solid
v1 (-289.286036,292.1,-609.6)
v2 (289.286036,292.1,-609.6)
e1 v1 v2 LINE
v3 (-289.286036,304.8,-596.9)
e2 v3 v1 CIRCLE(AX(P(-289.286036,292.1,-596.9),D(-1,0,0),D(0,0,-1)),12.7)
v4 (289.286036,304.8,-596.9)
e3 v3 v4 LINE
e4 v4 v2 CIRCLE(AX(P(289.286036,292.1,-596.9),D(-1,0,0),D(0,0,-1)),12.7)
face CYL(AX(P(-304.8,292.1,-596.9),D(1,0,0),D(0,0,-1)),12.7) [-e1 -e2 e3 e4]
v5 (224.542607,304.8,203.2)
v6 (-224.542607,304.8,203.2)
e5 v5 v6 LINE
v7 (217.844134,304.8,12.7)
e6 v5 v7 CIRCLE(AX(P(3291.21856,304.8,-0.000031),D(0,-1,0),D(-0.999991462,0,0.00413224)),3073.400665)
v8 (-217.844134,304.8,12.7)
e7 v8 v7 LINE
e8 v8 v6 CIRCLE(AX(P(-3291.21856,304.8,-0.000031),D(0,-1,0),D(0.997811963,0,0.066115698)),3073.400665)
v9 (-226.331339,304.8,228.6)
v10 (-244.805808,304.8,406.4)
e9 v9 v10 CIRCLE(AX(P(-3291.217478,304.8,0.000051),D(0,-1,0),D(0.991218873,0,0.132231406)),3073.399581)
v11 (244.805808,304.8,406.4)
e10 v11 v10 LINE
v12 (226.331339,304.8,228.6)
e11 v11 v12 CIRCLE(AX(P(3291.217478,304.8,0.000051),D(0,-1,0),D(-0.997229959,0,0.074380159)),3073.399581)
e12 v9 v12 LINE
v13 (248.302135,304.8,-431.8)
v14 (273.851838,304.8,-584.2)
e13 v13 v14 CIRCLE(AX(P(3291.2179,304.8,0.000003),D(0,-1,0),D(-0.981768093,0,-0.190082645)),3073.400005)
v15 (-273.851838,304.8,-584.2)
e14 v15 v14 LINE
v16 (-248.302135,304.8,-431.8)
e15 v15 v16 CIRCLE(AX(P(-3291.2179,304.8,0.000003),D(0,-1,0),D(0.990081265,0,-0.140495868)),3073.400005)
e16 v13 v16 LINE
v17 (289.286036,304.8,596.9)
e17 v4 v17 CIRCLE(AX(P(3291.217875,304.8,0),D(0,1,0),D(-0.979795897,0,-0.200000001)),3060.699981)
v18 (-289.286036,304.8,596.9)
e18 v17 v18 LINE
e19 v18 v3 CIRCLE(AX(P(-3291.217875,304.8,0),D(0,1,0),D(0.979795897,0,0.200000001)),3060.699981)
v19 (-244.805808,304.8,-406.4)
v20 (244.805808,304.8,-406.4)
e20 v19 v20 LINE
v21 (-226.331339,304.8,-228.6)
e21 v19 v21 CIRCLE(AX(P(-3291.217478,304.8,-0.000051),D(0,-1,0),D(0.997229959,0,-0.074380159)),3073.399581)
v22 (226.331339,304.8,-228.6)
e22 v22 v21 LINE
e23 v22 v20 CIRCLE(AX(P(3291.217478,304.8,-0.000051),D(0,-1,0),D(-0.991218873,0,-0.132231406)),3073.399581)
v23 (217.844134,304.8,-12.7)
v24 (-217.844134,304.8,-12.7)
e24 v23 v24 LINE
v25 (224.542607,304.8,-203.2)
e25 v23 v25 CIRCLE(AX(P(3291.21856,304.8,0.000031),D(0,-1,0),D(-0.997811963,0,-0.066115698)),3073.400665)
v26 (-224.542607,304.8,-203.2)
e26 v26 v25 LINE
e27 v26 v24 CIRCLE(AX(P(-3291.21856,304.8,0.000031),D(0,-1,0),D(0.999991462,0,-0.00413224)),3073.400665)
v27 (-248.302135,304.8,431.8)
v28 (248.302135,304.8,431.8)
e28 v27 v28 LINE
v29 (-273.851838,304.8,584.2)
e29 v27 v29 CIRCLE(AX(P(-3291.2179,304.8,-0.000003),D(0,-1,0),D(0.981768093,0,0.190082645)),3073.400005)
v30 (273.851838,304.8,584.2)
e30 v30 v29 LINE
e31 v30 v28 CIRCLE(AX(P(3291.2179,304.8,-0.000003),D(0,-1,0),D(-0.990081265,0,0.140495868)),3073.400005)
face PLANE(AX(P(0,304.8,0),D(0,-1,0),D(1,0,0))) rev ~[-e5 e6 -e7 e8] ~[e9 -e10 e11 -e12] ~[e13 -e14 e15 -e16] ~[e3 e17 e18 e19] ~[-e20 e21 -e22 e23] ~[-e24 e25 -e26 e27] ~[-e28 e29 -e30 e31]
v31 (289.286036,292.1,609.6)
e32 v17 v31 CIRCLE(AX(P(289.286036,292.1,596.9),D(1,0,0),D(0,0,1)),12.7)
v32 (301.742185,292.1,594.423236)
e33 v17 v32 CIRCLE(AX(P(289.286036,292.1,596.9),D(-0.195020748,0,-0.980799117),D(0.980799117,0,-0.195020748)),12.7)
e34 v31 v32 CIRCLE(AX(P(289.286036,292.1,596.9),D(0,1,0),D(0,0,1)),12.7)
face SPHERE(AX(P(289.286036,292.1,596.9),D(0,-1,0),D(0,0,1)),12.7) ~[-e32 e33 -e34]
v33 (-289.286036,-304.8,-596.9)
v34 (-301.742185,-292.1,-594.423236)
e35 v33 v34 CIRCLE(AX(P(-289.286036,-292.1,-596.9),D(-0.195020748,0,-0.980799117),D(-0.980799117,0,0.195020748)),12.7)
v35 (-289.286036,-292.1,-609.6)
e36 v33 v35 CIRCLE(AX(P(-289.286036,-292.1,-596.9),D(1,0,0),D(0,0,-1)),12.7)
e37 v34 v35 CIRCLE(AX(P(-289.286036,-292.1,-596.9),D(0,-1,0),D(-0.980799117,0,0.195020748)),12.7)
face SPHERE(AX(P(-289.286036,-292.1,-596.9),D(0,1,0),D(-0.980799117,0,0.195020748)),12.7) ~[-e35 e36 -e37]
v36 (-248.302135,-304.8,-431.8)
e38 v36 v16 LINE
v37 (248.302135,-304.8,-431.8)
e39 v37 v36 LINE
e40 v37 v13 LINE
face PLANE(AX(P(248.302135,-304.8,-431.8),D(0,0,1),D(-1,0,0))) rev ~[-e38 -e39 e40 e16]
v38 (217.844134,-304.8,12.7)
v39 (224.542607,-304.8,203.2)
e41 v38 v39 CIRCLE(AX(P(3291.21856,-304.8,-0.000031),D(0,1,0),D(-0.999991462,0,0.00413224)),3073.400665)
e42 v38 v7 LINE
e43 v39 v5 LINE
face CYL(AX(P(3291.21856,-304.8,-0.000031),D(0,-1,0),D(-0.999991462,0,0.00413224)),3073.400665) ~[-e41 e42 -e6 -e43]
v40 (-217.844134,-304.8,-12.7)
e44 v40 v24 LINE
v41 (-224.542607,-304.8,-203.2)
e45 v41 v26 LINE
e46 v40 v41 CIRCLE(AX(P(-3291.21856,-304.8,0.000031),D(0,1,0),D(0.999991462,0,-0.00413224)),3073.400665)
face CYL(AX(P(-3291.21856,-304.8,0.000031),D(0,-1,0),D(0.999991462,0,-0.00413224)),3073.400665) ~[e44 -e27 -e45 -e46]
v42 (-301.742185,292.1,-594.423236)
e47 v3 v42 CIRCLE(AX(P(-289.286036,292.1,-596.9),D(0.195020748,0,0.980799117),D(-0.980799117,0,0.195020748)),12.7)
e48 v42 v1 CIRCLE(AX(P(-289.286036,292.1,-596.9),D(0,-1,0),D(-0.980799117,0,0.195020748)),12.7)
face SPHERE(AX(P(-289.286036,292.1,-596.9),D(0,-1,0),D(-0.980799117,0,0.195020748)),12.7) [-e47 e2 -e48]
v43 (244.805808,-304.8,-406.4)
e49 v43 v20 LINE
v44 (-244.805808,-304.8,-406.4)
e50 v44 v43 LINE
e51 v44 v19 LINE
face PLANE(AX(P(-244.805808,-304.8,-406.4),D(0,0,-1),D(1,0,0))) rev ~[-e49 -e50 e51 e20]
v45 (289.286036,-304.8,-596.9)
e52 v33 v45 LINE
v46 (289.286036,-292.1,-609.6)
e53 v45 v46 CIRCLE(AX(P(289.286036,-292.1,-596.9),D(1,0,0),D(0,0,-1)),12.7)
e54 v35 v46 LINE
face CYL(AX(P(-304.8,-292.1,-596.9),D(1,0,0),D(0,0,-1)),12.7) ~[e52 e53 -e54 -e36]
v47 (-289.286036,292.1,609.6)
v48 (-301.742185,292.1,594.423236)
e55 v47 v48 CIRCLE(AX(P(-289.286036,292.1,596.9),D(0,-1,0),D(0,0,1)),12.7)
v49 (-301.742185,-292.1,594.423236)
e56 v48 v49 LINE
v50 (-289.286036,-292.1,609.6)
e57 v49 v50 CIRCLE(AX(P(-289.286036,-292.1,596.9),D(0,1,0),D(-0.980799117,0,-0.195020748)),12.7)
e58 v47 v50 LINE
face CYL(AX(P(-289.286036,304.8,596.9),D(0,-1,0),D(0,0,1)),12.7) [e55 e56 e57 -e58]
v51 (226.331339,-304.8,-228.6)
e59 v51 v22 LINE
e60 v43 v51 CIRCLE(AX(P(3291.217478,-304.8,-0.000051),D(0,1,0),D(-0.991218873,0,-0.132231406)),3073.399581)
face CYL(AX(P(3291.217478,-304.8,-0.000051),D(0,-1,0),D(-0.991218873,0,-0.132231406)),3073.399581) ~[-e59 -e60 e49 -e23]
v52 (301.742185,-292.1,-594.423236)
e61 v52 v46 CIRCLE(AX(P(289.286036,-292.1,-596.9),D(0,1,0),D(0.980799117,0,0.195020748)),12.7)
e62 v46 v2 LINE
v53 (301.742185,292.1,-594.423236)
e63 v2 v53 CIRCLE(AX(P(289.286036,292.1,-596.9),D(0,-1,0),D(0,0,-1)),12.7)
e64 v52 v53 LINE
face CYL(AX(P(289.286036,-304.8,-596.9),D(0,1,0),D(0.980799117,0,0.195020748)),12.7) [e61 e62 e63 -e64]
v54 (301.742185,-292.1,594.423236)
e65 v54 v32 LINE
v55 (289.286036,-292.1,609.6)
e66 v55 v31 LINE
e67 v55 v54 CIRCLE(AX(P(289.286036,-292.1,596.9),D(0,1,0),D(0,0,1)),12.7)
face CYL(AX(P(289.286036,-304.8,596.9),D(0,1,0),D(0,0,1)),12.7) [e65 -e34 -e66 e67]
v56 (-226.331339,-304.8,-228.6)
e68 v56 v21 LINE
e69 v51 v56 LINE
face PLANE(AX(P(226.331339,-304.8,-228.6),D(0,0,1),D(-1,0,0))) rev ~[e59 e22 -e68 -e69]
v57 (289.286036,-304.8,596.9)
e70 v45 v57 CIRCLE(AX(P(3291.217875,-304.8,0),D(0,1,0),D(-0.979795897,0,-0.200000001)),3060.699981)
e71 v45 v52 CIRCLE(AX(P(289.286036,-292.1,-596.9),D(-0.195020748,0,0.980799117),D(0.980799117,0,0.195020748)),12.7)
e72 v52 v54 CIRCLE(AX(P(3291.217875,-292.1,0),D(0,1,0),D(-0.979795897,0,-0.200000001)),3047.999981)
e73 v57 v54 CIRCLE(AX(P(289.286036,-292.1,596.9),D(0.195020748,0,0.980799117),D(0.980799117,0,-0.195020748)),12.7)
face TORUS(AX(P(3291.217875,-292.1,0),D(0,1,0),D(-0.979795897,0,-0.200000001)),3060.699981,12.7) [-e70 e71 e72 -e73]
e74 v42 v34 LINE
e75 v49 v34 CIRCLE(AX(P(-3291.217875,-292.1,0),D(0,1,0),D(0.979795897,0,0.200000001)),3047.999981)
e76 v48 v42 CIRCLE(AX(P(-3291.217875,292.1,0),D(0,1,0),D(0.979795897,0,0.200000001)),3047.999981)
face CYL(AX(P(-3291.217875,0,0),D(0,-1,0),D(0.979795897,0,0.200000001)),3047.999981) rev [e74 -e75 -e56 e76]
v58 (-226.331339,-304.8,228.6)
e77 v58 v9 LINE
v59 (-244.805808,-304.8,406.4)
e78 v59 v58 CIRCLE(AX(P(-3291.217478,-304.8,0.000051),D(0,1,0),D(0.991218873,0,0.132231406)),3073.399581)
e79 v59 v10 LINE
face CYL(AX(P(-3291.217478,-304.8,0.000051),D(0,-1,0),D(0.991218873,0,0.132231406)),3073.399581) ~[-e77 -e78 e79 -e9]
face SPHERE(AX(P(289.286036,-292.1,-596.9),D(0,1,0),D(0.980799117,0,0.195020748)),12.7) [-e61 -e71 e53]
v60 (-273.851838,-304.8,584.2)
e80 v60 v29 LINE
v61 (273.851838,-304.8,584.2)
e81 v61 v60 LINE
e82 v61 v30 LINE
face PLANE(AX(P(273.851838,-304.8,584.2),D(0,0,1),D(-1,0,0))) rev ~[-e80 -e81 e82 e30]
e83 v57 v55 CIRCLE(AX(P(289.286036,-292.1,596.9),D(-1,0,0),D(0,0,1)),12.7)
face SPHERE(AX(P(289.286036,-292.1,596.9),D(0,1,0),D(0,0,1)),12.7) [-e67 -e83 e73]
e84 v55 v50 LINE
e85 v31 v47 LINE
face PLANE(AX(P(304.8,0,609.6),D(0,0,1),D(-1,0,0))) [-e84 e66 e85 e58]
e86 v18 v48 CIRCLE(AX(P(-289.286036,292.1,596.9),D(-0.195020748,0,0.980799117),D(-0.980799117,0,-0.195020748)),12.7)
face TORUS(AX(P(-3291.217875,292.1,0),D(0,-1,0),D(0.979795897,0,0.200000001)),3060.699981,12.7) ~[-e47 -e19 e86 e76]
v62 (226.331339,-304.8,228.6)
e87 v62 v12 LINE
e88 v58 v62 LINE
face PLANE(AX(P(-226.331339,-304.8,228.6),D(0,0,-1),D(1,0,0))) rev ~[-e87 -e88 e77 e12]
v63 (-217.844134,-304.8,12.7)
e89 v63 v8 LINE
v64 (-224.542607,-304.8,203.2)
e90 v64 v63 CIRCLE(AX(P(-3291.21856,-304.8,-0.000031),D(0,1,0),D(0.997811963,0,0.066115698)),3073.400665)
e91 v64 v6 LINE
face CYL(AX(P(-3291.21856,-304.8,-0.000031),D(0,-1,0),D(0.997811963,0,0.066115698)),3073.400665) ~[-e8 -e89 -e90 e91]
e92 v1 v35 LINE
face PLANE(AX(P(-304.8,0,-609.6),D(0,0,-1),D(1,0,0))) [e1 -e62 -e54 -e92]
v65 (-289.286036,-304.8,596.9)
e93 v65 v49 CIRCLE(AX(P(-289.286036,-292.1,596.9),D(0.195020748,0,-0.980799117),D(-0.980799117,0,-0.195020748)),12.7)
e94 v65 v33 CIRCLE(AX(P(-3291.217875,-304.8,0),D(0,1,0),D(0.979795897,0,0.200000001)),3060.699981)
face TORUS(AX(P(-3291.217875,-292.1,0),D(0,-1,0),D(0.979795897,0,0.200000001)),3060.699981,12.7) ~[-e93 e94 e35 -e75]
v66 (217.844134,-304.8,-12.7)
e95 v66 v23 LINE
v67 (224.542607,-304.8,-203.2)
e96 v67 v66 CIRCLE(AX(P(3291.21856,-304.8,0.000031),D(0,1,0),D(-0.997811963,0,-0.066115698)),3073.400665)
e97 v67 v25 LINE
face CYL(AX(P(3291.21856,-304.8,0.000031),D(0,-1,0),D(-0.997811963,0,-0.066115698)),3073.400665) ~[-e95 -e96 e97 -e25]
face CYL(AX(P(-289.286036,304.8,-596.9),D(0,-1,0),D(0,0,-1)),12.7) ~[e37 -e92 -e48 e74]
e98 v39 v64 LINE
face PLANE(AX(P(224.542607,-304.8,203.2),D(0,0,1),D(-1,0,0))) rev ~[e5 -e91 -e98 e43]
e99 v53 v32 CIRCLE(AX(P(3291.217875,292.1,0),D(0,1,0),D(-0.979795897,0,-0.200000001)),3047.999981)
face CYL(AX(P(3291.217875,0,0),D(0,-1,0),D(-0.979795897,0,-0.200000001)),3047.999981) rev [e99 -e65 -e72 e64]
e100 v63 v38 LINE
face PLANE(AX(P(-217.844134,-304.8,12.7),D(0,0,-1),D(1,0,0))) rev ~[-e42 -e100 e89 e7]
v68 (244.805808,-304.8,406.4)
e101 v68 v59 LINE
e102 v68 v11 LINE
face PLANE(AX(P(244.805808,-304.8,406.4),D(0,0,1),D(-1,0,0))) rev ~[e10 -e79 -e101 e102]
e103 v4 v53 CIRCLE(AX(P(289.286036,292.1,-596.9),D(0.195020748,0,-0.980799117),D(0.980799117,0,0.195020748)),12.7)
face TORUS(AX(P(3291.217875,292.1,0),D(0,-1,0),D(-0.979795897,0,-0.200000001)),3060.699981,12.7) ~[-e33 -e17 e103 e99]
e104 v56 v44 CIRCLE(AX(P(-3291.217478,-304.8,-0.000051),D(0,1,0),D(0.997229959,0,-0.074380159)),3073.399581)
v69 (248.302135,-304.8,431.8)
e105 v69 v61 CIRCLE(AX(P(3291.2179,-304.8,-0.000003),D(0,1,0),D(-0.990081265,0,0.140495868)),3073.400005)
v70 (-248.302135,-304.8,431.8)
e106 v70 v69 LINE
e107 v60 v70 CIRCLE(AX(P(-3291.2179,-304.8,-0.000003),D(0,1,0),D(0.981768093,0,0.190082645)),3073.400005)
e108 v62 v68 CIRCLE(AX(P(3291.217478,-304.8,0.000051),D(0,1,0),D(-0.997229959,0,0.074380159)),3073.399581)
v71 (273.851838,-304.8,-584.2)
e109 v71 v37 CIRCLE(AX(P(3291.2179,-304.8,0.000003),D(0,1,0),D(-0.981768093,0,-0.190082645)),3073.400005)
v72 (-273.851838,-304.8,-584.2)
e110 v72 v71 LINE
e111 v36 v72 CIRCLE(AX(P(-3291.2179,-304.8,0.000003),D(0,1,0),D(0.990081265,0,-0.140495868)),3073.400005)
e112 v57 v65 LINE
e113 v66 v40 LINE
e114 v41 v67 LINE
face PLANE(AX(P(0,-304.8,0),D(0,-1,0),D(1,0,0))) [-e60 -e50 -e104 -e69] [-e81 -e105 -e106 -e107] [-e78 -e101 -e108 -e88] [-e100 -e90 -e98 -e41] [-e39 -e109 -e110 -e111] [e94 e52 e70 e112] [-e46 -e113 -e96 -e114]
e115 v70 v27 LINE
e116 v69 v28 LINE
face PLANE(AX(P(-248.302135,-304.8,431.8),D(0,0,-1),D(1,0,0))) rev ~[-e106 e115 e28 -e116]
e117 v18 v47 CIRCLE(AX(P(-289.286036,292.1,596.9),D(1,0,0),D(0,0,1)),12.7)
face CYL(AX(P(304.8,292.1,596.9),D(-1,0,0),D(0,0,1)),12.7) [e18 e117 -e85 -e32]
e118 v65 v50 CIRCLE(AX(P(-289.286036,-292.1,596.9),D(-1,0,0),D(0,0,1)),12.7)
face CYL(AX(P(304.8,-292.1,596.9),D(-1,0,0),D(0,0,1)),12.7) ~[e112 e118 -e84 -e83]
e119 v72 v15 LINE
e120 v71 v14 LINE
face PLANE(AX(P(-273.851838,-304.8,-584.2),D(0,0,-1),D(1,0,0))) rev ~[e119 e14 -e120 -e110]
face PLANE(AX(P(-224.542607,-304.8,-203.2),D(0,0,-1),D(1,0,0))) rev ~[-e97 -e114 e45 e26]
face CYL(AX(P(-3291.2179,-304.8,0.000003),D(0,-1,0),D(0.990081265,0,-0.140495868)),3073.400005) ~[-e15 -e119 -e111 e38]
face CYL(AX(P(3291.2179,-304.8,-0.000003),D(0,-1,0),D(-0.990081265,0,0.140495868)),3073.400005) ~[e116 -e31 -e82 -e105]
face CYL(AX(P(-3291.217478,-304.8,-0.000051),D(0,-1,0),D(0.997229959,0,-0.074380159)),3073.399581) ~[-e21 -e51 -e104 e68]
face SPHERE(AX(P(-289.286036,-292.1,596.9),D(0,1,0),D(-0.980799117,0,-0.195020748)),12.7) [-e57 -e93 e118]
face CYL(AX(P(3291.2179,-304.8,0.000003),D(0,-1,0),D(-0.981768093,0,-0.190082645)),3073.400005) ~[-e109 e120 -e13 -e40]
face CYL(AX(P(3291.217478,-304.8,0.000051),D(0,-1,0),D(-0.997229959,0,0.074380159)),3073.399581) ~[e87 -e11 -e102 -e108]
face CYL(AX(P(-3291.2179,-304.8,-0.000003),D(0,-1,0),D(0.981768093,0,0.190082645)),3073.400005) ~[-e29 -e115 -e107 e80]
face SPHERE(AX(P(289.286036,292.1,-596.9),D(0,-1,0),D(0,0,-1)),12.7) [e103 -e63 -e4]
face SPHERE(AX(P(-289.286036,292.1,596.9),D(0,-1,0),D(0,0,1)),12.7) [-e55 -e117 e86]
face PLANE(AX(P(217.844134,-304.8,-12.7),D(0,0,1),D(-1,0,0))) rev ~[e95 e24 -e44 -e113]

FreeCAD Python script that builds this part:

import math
import FreeCAD as App
import Part
import Sketcher
Q = App.Units.Quantity

doc = App.newDocument("Part")
body = doc.addObject("PartDesign::Body", "Body")

# Sketch on XZ plane
sketch1 = body.newObject("Sketcher::SketchObject", "Sketch")
sketch1.AttachmentSupport = (doc.getObject("XZ_Plane"), [""])
sketch1.MapMode = "FlatFace"
sketch1.addGeometry([
    Part.LineSegment(App.Vector(304.8, 609.6, 0), App.Vector(-304.8, 609.6, 0)),
    Part.ArcOfCircle(Part.Circle(App.Vector(-3291.217875, 0, 0), App.Vector(0, 0, 1), 3047.999981), math.radians(-11.536959), math.radians(11.536959)),
    Part.LineSegment(App.Vector(-304.8, -609.6, 0), App.Vector(304.8, -609.6, 0)),
    Part.ArcOfCircle(Part.Circle(App.Vector(3291.217875, 0, 0), App.Vector(0, 0, 1), 3047.999981), math.radians(168.463041), math.radians(191.536959)),
], False)
sketch1.addConstraint([
    Sketcher.Constraint("Coincident", 0, 2, 1, 2),
    Sketcher.Constraint("Coincident", 1, 1, 2, 1),
    Sketcher.Constraint("Coincident", 2, 2, 3, 2),
    Sketcher.Constraint("Coincident", 3, 1, 0, 1),
    Sketcher.Constraint("Horizontal", 0),
    Sketcher.Constraint("Horizontal", 2),
    Sketcher.Constraint("Equal", 1, 3),
    Sketcher.Constraint("Symmetric", 1, 3, 3, 3, -1, 1),
    Sketcher.Constraint("PointOnObject", 1, 3, -1),
    Sketcher.Constraint("Equal", 0, 2),
    Sketcher.Constraint("DistanceX", 0, 2, 0, 1, Q("24 in")),
    Sketcher.Constraint("DistanceY", -1, 1, 0, 2, Q("24 in")),
    Sketcher.Constraint("Radius", 1, Q("3047.999981 mm")),
])
pad1 = body.newObject("PartDesign::Pad", "Pad")
pad1.Profile = sketch1
pad1.Length = Q("24 in")
pad1.Midplane = True
doc.recompute()

fillet = body.newObject("PartDesign::Fillet", "Fillet")
fillet.Base = (pad1, ["Edge1"])
fillet.UseAllEdges = True
fillet.Radius = Q("0.5 in")

# Sketch on XZ plane
sketch2 = body.newObject("Sketcher::SketchObject", "Sketch001")
sketch2.AttachmentSupport = (doc.getObject("XZ_Plane"), [""])
sketch2.MapMode = "FlatFace"
sketch2.AttachmentOffset = App.Placement(App.Vector(0, 0, 12 * 25.4), App.Rotation())
sketch2.addGeometry([
    Part.ArcOfCircle(Part.Circle(App.Vector(3291.2179, -0.000003, 0), App.Vector(0, 0, 1), 3073.400005), math.radians(169.042393), math.radians(171.923459)),  # 0
    Part.LineSegment(App.Vector(273.851838, 584.2, 0), App.Vector(-273.851838, 584.2, 0)),  # 1
    Part.ArcOfCircle(Part.Circle(App.Vector(-3291.2179, -0.000003, 0), App.Vector(0, 0, 1), 3073.400005), math.radians(8.076541), math.radians(10.957607)),  # 2
    Part.LineSegment(App.Vector(-248.302135, 431.8, 0), App.Vector(248.302135, 431.8, 0)),  # 3
    Part.ArcOfCircle(Part.Circle(App.Vector(3291.2179, 0.000003, 0), App.Vector(0, 0, 1), 3073.400005), math.radians(-171.923459), math.radians(-169.042393)),  # 4
    Part.LineSegment(App.Vector(248.302135, -431.8, 0), App.Vector(-248.302135, -431.8, 0)),  # 5
    Part.ArcOfCircle(Part.Circle(App.Vector(-3291.2179, 0.000003, 0), App.Vector(0, 0, 1), 3073.400005), math.radians(-10.957607), math.radians(-8.076541)),  # 6
    Part.LineSegment(App.Vector(-273.851838, -584.2, 0), App.Vector(273.851838, -584.2, 0)),  # 7
    Part.ArcOfCircle(Part.Circle(App.Vector(3291.217478, -0.000051, 0), App.Vector(0, 0, 1), 3073.399581), math.radians(-175.734391), math.radians(-172.401444)),  # 8
    Part.LineSegment(App.Vector(226.331339, -228.6, 0), App.Vector(-226.331339, -228.6, 0)),  # 9
    Part.ArcOfCircle(Part.Circle(App.Vector(-3291.217478, -0.000051, 0), App.Vector(0, 0, 1), 3073.399581), math.radians(-7.598556), math.radians(-4.265609)),  # 10
    Part.LineSegment(App.Vector(-244.805808, -406.4, 0), App.Vector(244.805808, -406.4, 0)),  # 11
    Part.ArcOfCircle(Part.Circle(App.Vector(3291.21856, 0.000031, 0), App.Vector(0, 0, 1), 3073.400665), math.radians(-179.763239), math.radians(-176.209084)),  # 12
    Part.LineSegment(App.Vector(217.844134, -12.7, 0), App.Vector(-217.844134, -12.7, 0)),  # 13
    Part.ArcOfCircle(Part.Circle(App.Vector(-3291.21856, 0.000031, 0), App.Vector(0, 0, 1), 3073.400665), math.radians(-3.790916), math.radians(-0.236761)),  # 14
    Part.LineSegment(App.Vector(-224.542607, -203.2, 0), App.Vector(224.542607, -203.2, 0)),  # 15
    Part.ArcOfCircle(Part.Circle(App.Vector(3291.21856, -0.000031, 0), App.Vector(0, 0, 1), 3073.400665), math.radians(176.209084), math.radians(179.763239)),  # 16
    Part.LineSegment(App.Vector(224.542607, 203.2, 0), App.Vector(-224.542607, 203.2, 0)),  # 17
    Part.ArcOfCircle(Part.Circle(App.Vector(-3291.21856, -0.000031, 0), App.Vector(0, 0, 1), 3073.400665), math.radians(0.236761), math.radians(3.790916)),  # 18
    Part.LineSegment(App.Vector(-217.844134, 12.7, 0), App.Vector(217.844134, 12.7, 0)),  # 19
    Part.ArcOfCircle(Part.Circle(App.Vector(3291.217478, 0.000051, 0), App.Vector(0, 0, 1), 3073.399581), math.radians(172.401444), math.radians(175.734391)),  # 20
    Part.LineSegment(App.Vector(244.805808, 406.4, 0), App.Vector(-244.805808, 406.4, 0)),  # 21
    Part.ArcOfCircle(Part.Circle(App.Vector(-3291.217478, 0.000051, 0), App.Vector(0, 0, 1), 3073.399581), math.radians(4.265609), math.radians(7.598556)),  # 22
    Part.LineSegment(App.Vector(-226.331339, 228.6, 0), App.Vector(226.331339, 228.6, 0)),  # 23
], False)
sketch2.addConstraint([
    Sketcher.Constraint("Coincident", 0, 1, 1, 1),
    Sketcher.Constraint("Coincident", 1, 2, 2, 2),
    Sketcher.Constraint("Coincident", 2, 1, 3, 1),
    Sketcher.Constraint("Coincident", 3, 2, 0, 2),
    Sketcher.Constraint("Coincident", 4, 1, 5, 1),
    Sketcher.Constraint("Coincident", 5, 2, 6, 2),
    Sketcher.Constraint("Coincident", 6, 1, 7, 1),
    Sketcher.Constraint("Coincident", 7, 2, 4, 2),
    Sketcher.Constraint("Coincident", 8, 1, 9, 1),
    Sketcher.Constraint("Coincident", 9, 2, 10, 2),
    Sketcher.Constraint("Coincident", 10, 1, 11, 1),
    Sketcher.Constraint("Coincident", 11, 2, 8, 2),
    Sketcher.Constraint("Coincident", 12, 1, 13, 1),
    Sketcher.Constraint("Coincident", 13, 2, 14, 2),
    Sketcher.Constraint("Coincident", 14, 1, 15, 1),
    Sketcher.Constraint("Coincident", 15, 2, 12, 2),
    Sketcher.Constraint("Coincident", 16, 1, 17, 1),
    Sketcher.Constraint("Coincident", 17, 2, 18, 2),
    Sketcher.Constraint("Coincident", 18, 1, 19, 1),
    Sketcher.Constraint("Coincident", 19, 2, 16, 2),
    Sketcher.Constraint("Coincident", 20, 1, 21, 1),
    Sketcher.Constraint("Coincident", 21, 2, 22, 2),
    Sketcher.Constraint("Coincident", 22, 1, 23, 1),
    Sketcher.Constraint("Coincident", 23, 2, 20, 2),
    Sketcher.Constraint("Horizontal", 1),
    Sketcher.Constraint("Horizontal", 3),
    Sketcher.Constraint("Horizontal", 5),
    Sketcher.Constraint("Horizontal", 7),
    Sketcher.Constraint("Horizontal", 9),
    Sketcher.Constraint("Horizontal", 11),
    Sketcher.Constraint("Horizontal", 13),
    Sketcher.Constraint("Horizontal", 15),
    Sketcher.Constraint("Horizontal", 17),
    Sketcher.Constraint("Horizontal", 19),
    Sketcher.Constraint("Horizontal", 21),
    Sketcher.Constraint("Horizontal", 23),
    Sketcher.Constraint("Coincident", 4, 3, 0, 3),
    Sketcher.Constraint("Coincident", 6, 3, 2, 3),
    Sketcher.Constraint("Equal", 0, 2),
    Sketcher.Constraint("Equal", 2, 4),
    Sketcher.Constraint("Equal", 4, 6),
    Sketcher.Constraint("Equal", 8, 10),
    Sketcher.Constraint("Equal", 12, 14),
    Sketcher.Constraint("Equal", 14, 16),
    Sketcher.Constraint("Equal", 16, 18),
    Sketcher.Constraint("Equal", 10, 20),
    Sketcher.Constraint("Equal", 20, 22),
    Sketcher.Constraint("Symmetric", 0, 3, 2, 3, -1, 1),
    Sketcher.Constraint("Symmetric", 14, 3, 16, 3, -1, 1),
    Sketcher.Constraint("Symmetric", 12, 3, 18, 3, -1, 1),
    Sketcher.Constraint("Symmetric", 10, 3, 20, 3, -1, 1),
    Sketcher.Constraint("Symmetric", 8, 3, 22, 3, -1, 1),
    Sketcher.Constraint("Symmetric", 8, 3, 10, 3, -2),
    Sketcher.Constraint("Symmetric", 12, 3, 14, 3, -2),
    Sketcher.Constraint("Horizontal", 0, 3, 2, 3),
    Sketcher.Constraint("Equal", 3, 5),
    Sketcher.Constraint("Equal", 1, 7),
    Sketcher.Constraint("Equal", 15, 17),
    Sketcher.Constraint("Equal", 13, 19),
    Sketcher.Constraint("Equal", 11, 21),
    Sketcher.Constraint("Equal", 9, 23),
    Sketcher.Constraint("DistanceY", -1, 1, 1, 2, Q("23 in")),
    Sketcher.Constraint("DistanceY", -1, 1, 3, 2, Q("17 in")),
    Sketcher.Constraint("DistanceY", 9, 2, -1, 1, Q("9 in")),
    Sketcher.Constraint("DistanceY", 11, 2, -1, 1, Q("16 in")),
    Sketcher.Constraint("DistanceY", 15, 2, -1, 1, Q("8 in")),
    Sketcher.Constraint("DistanceY", 13, 2, -1, 1, Q("0.5 in")),
    Sketcher.Constraint("Radius", 8, Q("3073.399581 mm")),
    Sketcher.Constraint("Radius", 0, Q("3073.400005 mm")),
    Sketcher.Constraint("Radius", 12, Q("3073.400665 mm")),
    Sketcher.Constraint("DistanceX", 3, 1, 3, 2, Q("496.60427 mm")),
    Sketcher.Constraint("DistanceX", 9, 2, 9, 1, Q("452.662678 mm")),
    Sketcher.Constraint("DistanceX", 13, 2, 13, 1, Q("435.688268 mm")),
    Sketcher.Constraint("DistanceY", 8, 3, 20, 3, Q("0.000102 mm")),
    Sketcher.Constraint("DistanceX", 15, 2, 11, 2, Q("20.263201 mm")),
])
pocket1 = body.newObject("PartDesign::Pocket", "Pocket")
pocket1.Profile = sketch2
pocket1.Type = "ThroughAll"

doc.recompute()
